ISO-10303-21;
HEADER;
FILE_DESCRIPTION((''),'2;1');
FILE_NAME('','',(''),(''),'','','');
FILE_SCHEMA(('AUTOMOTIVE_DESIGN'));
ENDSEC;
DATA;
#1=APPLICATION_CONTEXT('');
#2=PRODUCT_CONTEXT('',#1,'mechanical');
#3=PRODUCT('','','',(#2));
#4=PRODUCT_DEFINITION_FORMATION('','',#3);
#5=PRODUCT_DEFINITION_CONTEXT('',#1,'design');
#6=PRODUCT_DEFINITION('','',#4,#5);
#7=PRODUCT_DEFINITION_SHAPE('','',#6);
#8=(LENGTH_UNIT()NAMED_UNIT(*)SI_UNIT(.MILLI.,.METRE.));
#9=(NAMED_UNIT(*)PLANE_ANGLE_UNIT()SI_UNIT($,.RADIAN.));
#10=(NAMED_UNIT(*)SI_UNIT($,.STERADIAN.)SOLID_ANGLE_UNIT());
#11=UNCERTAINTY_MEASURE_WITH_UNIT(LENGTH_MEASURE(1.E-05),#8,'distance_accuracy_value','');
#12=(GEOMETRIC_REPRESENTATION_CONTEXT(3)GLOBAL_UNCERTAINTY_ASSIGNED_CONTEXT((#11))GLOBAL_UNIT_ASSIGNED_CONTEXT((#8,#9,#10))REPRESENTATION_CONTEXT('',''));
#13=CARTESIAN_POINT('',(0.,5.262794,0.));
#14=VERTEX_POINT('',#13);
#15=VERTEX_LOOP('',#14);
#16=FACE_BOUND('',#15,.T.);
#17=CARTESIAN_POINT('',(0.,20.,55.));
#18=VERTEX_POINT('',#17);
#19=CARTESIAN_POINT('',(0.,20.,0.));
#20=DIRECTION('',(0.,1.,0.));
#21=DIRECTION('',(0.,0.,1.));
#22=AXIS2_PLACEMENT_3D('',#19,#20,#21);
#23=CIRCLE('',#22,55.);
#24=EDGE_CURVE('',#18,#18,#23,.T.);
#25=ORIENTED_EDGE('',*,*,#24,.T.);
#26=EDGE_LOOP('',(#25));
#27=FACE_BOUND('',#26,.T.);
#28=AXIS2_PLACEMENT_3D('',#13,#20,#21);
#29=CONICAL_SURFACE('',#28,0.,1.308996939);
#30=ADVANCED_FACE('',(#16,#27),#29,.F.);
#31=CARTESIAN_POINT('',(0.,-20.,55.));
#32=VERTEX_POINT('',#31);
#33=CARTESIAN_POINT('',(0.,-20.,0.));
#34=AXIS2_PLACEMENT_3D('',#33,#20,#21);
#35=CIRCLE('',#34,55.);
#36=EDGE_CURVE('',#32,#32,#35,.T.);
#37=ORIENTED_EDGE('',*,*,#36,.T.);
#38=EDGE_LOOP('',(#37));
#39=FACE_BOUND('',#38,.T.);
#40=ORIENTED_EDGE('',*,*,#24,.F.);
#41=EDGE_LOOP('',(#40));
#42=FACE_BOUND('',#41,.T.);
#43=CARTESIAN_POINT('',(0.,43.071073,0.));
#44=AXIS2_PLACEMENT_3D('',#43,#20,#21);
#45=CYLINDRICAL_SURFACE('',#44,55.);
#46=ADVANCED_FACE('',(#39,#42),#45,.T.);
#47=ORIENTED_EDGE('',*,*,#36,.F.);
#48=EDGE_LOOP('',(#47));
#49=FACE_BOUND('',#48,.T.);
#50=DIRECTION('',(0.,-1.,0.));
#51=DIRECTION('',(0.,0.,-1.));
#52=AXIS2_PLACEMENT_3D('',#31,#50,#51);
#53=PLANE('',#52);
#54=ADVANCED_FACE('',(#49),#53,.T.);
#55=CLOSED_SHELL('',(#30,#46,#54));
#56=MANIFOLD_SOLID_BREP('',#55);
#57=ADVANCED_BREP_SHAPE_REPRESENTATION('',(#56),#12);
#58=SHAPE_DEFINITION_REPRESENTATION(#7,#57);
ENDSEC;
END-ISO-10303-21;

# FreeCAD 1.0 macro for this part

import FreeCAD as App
import Part
import Sketcher

V = App.Vector
Q = App.Units.Quantity


def add_polygon(sketch, points):
    """Adds a closed chain of lines whose ends are joined by coincident constraints."""
    first, n = sketch.GeometryCount, len(points)
    for a, b in zip(points, points[1:] + points[:1]):
        sketch.addGeometry(Part.LineSegment(App.Vector(*a, 0), App.Vector(*b, 0)), False)
    for i in range(n):
        sketch.addConstraint(Sketcher.Constraint("Coincident", first + i, 2, first + (i + 1) % n, 1))

doc = App.newDocument("Part")
body = doc.addObject("PartDesign::Body", "Body")

sketch1 = body.newObject("Sketcher::SketchObject", "Sketch")
sketch1.AttachmentSupport = (doc.getObject("YZ_Plane"), [""])
sketch1.MapMode = "FlatFace"
add_polygon(sketch1, [(20, 55), (-20, 55), (-20, 0), (5.262794, 0)])
sketch1.addConstraint([
    Sketcher.Constraint("Horizontal", 0),
    Sketcher.Constraint("Vertical", 1),
    Sketcher.Constraint("Horizontal", 2),
    Sketcher.Constraint("PointOnObject", 1, 2, -1),
    Sketcher.Constraint("DistanceX", 0, 2, 0, 1, Q("40 mm")),
    Sketcher.Constraint("DistanceY", 1, 2, 1, 1, Q("55 mm")),
    Sketcher.Constraint("Angle", 3, Q("75 deg")),
    Sketcher.Constraint("DistanceX", 0, 2, -1, 1, Q("20 mm")),
])
revolution = body.newObject("PartDesign::Revolution", "Revolution")
revolution.Profile = sketch1
revolution.ReferenceAxis = (sketch1, ["H_Axis"])
revolution.Angle = 360

doc.recompute()
